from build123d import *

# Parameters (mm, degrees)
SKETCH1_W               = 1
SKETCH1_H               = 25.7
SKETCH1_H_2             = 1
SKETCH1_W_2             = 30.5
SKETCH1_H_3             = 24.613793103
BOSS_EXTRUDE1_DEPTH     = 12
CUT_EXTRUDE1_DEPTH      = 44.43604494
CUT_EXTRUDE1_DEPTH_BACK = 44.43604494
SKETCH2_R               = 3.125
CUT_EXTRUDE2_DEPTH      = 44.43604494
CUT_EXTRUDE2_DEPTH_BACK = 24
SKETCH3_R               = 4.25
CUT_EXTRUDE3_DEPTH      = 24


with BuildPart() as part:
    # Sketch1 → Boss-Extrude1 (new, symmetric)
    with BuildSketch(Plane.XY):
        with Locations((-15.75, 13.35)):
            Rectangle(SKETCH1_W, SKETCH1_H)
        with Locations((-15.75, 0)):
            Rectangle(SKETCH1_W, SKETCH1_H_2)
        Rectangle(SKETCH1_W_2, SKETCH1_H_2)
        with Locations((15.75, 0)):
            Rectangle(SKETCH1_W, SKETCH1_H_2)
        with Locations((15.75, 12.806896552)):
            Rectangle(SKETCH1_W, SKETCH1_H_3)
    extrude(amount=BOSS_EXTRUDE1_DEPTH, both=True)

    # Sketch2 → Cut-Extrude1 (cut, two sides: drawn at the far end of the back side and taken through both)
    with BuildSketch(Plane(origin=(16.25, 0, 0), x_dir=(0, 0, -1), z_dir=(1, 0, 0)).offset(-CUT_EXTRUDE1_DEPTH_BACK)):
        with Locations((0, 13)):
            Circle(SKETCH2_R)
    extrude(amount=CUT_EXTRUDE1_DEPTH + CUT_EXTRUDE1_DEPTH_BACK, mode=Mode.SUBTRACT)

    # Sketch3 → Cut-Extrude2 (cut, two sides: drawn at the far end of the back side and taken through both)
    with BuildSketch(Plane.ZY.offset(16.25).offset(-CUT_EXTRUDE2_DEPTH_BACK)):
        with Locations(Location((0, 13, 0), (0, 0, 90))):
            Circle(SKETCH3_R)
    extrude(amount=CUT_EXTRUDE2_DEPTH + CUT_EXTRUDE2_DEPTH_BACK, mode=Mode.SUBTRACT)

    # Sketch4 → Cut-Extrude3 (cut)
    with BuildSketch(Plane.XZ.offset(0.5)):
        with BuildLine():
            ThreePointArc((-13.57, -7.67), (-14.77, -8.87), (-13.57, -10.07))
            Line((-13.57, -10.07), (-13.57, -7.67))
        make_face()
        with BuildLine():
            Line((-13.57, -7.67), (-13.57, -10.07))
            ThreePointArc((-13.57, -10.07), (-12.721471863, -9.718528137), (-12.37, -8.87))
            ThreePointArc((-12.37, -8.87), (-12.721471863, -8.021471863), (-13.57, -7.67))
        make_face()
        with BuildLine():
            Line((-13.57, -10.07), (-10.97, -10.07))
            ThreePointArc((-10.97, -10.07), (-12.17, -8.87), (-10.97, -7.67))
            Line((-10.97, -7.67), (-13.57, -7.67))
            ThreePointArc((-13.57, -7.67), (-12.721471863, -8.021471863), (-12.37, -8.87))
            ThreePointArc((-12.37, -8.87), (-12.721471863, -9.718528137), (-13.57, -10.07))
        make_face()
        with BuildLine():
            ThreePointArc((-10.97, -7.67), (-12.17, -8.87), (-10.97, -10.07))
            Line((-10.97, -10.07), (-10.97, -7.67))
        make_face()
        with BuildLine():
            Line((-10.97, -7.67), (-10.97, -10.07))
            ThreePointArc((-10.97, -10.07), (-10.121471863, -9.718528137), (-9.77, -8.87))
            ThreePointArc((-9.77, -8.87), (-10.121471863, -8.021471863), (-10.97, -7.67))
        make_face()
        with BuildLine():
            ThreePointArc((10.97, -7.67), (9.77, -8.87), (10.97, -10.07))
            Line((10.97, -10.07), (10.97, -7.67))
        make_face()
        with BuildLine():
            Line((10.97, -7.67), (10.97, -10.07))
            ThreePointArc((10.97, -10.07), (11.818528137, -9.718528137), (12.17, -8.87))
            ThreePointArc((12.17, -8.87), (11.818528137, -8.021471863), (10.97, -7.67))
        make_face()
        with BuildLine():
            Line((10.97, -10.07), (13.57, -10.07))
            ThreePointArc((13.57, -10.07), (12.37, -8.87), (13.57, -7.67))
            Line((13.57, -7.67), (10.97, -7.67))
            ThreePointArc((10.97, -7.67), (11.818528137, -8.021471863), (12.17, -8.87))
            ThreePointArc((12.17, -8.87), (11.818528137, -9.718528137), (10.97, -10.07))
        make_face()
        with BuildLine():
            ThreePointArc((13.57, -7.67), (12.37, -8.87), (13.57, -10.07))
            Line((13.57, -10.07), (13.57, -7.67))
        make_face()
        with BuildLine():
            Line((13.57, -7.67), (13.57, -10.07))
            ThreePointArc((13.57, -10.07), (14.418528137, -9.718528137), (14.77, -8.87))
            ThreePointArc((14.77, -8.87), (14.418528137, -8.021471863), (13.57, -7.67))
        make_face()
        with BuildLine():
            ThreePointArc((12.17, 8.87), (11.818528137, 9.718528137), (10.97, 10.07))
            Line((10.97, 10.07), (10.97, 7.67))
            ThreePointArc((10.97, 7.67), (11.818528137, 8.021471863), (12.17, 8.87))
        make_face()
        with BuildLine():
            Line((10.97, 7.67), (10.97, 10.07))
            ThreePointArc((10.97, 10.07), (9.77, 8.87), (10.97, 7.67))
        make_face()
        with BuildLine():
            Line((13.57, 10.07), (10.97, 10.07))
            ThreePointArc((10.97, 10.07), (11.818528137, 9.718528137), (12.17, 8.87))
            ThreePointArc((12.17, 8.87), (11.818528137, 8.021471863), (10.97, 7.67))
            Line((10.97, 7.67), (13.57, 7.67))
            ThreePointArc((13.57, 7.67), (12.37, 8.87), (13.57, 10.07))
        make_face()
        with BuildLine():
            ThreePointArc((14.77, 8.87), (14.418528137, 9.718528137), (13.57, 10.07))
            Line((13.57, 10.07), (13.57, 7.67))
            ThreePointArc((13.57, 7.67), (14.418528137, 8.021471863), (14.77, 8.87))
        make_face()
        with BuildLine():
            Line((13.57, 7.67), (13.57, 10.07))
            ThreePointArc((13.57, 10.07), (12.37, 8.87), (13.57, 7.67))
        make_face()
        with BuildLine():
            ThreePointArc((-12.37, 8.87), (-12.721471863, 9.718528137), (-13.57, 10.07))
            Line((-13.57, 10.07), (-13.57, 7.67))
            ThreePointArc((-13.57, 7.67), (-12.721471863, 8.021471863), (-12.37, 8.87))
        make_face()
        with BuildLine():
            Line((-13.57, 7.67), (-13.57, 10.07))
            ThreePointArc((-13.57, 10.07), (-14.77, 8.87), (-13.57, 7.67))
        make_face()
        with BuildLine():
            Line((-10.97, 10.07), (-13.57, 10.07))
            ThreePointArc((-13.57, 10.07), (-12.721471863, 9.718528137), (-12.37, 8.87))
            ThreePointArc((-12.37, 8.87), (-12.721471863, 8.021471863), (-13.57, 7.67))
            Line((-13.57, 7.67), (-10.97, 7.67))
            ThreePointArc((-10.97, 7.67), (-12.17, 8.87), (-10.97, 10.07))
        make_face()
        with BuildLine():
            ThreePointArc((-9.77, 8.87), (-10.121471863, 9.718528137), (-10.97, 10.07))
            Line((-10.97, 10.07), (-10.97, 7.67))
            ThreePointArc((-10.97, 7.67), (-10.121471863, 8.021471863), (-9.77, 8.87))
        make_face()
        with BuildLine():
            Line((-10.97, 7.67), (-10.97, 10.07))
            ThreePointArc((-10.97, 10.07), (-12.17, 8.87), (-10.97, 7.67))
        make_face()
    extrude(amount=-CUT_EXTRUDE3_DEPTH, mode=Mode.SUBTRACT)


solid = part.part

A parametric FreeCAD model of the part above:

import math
import FreeCAD as App
import Part
import Sketcher

V = App.Vector


def add_polygon(sketch, points):
    """Adds a closed chain of lines whose ends are joined by coincident constraints."""
    first, n = sketch.GeometryCount, len(points)
    for a, b in zip(points, points[1:] + points[:1]):
        sketch.addGeometry(Part.LineSegment(App.Vector(*a, 0), App.Vector(*b, 0)), False)
    for i in range(n):
        sketch.addConstraint(Sketcher.Constraint("Coincident", first + i, 2, first + (i + 1) % n, 1))

doc = App.newDocument("Part")
body = doc.addObject("PartDesign::Body", "Body")

# Sketch on XY plane
sketch1 = doc.addObject("Sketcher::SketchObject", "Sketch")
body.addObject(sketch1)
sketch1.AttachmentSupport = (doc.XY_Plane, [""])
sketch1.MapMode = "FlatFace"
add_polygon(sketch1, [(-16.2, 26.2), (-16.2, -0.5), (16.2, -0.5), (16.2, 25.1), (15.2, 25.1), (15.2, 0.5), (-15.2, 0.5), (-15.2, 26.2)])  # lines 0-7
sketch1.addConstraint([
    Sketcher.Constraint("Vertical", 0),
    Sketcher.Constraint("Horizontal", 1),
    Sketcher.Constraint("Vertical", 2),
    Sketcher.Constraint("Horizontal", 3),
    Sketcher.Constraint("Vertical", 4),
    Sketcher.Constraint("Horizontal", 5),
    Sketcher.Constraint("Vertical", 6),
    Sketcher.Constraint("Horizontal", 7),
    Sketcher.Constraint("Equal", 3, 7),
    Sketcher.Constraint("DistanceX", 3, 2, 3, 1, 1.0),
    Sketcher.Constraint("DistanceX", 1, 1, 1, 2, 32.5),
    Sketcher.Constraint("DistanceY", 0, 2, 0, 1, 26.7),
    Sketcher.Constraint("DistanceY", 6, 1, 6, 2, 25.7),
    Sketcher.Constraint("DistanceY", 0, 2, -1, 1, 0.5),
    Sketcher.Constraint("DistanceX", 0, 2, -1, 1, 16.25),
    Sketcher.Constraint("DistanceY", 2, 1, 2, 2, 25.613793),
])
pad1 = doc.addObject("PartDesign::Pad", "Pad")
body.addObject(pad1)
pad1.Profile = sketch1
pad1.Length = 24
pad1.Midplane = True

# Sketch on YZ plane
sketch2 = doc.addObject("Sketcher::SketchObject", "Sketch001")
body.addObject(sketch2)
sketch2.AttachmentSupport = (doc.YZ_Plane, [""])
sketch2.MapMode = "FlatFace"
sketch2.AttachmentOffset = App.Placement(V(0, 0, 16.25), App.Rotation())
sketch2.addGeometry(Part.Circle(V(13, 0, 0), V(0, 0, 1), 3.1), False)
sketch2.addConstraint([
    Sketcher.Constraint("PointOnObject", 0, 3, -1),
    Sketcher.Constraint("Diameter", 0, 6.25),
    Sketcher.Constraint("DistanceX", -1, 1, 0, 3, 13.0),
])
pocket1 = doc.addObject("PartDesign::Pocket", "Pocket")
body.addObject(pocket1)
pocket1.Profile = sketch2
pocket1.Type = "ThroughAll"
pocket1.Midplane = True

# Sketch on YZ plane
sketch3 = doc.addObject("Sketcher::SketchObject", "Sketch002")
body.addObject(sketch3)
sketch3.AttachmentSupport = (doc.YZ_Plane, [""])
sketch3.MapMode = "FlatFace"
sketch3.AttachmentOffset = App.Placement(V(0, 0, -16.25), App.Rotation())
sketch3.addGeometry(Part.Circle(V(13, 0, 0), V(0, 0, 1), 4.2), False)
sketch3.addConstraint([
    Sketcher.Constraint("PointOnObject", 0, 3, -1),
    Sketcher.Constraint("Diameter", 0, 8.5),
    Sketcher.Constraint("DistanceX", -1, 1, 0, 3, 13.0),
])
pocket2 = doc.addObject("PartDesign::Pocket", "Pocket001")
body.addObject(pocket2)
pocket2.Profile = sketch3
pocket2.Type = "TwoLengths"
pocket2.Length = 44.436045
pocket2.Length2 = 24

# Sketch on XZ plane
sketch4 = doc.addObject("Sketcher::SketchObject", "Sketch003")
body.addObject(sketch4)
sketch4.AttachmentSupport = (doc.XZ_Plane, [""])
sketch4.MapMode = "FlatFace"
sketch4.AttachmentOffset = App.Placement(V(0, 0, 0.5), App.Rotation())
sketch4.addGeometry([
    Part.ArcOfCircle(Part.Circle(V(-13.6, -8.9, 0), V(0, 0, 1), 1.2), math.radians(90), math.radians(270)),  # 0
    Part.LineSegment(V(-13.6, -10.1, 0), V(-11, -10.1, 0)),  # 1
    Part.ArcOfCircle(Part.Circle(V(-11, -8.9, 0), V(0, 0, 1), 1.2), math.radians(-90), math.radians(0)),  # 2
    Part.ArcOfCircle(Part.Circle(V(-11, -8.9, 0), V(0, 0, 1), 1.2), math.radians(0), math.radians(90)),  # 3
    Part.LineSegment(V(-11, -7.7, 0), V(-13.6, -7.7, 0)),  # 4
    Part.LineSegment(V(11, -10.1, 0), V(13.6, -10.1, 0)),  # 5
    Part.ArcOfCircle(Part.Circle(V(13.6, -8.9, 0), V(0, 0, 1), 1.2), math.radians(-90), math.radians(0)),  # 6
    Part.ArcOfCircle(Part.Circle(V(13.6, -8.9, 0), V(0, 0, 1), 1.2), math.radians(0), math.radians(90)),  # 7
    Part.LineSegment(V(13.6, -7.7, 0), V(11, -7.7, 0)),  # 8
    Part.ArcOfCircle(Part.Circle(V(11, -8.9, 0), V(0, 0, 1), 1.2), math.radians(90), math.radians(270)),  # 9
    Part.LineSegment(V(11, 7.7, 0), V(13.6, 7.7, 0)),  # 10
    Part.ArcOfCircle(Part.Circle(V(13.6, 8.9, 0), V(0, 0, 1), 1.2), math.radians(-90), math.radians(0)),  # 11
    Part.ArcOfCircle(Part.Circle(V(13.6, 8.9, 0), V(0, 0, 1), 1.2), math.radians(0), math.radians(90)),  # 12
    Part.LineSegment(V(13.6, 10.1, 0), V(11, 10.1, 0)),  # 13
    Part.ArcOfCircle(Part.Circle(V(11, 8.9, 0), V(0, 0, 1), 1.2), math.radians(90), math.radians(270)),  # 14
    Part.LineSegment(V(-13.6, 7.7, 0), V(-11, 7.7, 0)),  # 15
    Part.ArcOfCircle(Part.Circle(V(-11, 8.9, 0), V(0, 0, 1), 1.2), math.radians(-90), math.radians(0)),  # 16
    Part.ArcOfCircle(Part.Circle(V(-11, 8.9, 0), V(0, 0, 1), 1.2), math.radians(0), math.radians(90)),  # 17
    Part.LineSegment(V(-11, 10.1, 0), V(-13.6, 10.1, 0)),  # 18
    Part.ArcOfCircle(Part.Circle(V(-13.6, 8.9, 0), V(0, 0, 1), 1.2), math.radians(90), math.radians(270)),  # 19
], False)
sketch4.addConstraint([
    Sketcher.Constraint("Tangent", 0, 2, 1, 1),
    Sketcher.Constraint("Tangent", 1, 2, 2, 1),
    Sketcher.Constraint("Tangent", 2, 2, 3, 1),
    Sketcher.Constraint("Tangent", 3, 2, 4, 1),
    Sketcher.Constraint("Tangent", 4, 2, 0, 1),
    Sketcher.Constraint("Tangent", 5, 2, 6, 1),
    Sketcher.Constraint("Tangent", 6, 2, 7, 1),
    Sketcher.Constraint("Tangent", 7, 2, 8, 1),
    Sketcher.Constraint("Tangent", 8, 2, 9, 1),
    Sketcher.Constraint("Tangent", 9, 2, 5, 1),
    Sketcher.Constraint("Tangent", 10, 2, 11, 1),
    Sketcher.Constraint("Tangent", 11, 2, 12, 1),
    Sketcher.Constraint("Tangent", 12, 2, 13, 1),
    Sketcher.Constraint("Tangent", 13, 2, 14, 1),
    Sketcher.Constraint("Tangent", 14, 2, 10, 1),
    Sketcher.Constraint("Tangent", 15, 2, 16, 1),
    Sketcher.Constraint("Tangent", 16, 2, 17, 1),
    Sketcher.Constraint("Tangent", 17, 2, 18, 1),
    Sketcher.Constraint("Tangent", 18, 2, 19, 1),
    Sketcher.Constraint("Tangent", 19, 2, 15, 1),
    Sketcher.Constraint("Horizontal", 1),
    Sketcher.Constraint("Horizontal", 4),
    Sketcher.Constraint("Horizontal", 5),
    Sketcher.Constraint("Horizontal", 8),
    Sketcher.Constraint("Horizontal", 10),
    Sketcher.Constraint("Horizontal", 13),
    Sketcher.Constraint("Horizontal", 15),
    Sketcher.Constraint("Horizontal", 18),
    Sketcher.Constraint("Equal", 0, 2),
    Sketcher.Constraint("Equal", 3, 6),
    Sketcher.Constraint("Equal", 6, 7),
    Sketcher.Constraint("Equal", 9, 11),
    Sketcher.Constraint("Equal", 11, 12),
    Sketcher.Constraint("Equal", 14, 16),
    Sketcher.Constraint("Equal", 16, 17),
    Sketcher.Constraint("Symmetric", 0, 3, 11, 3, -1, 1),
    Sketcher.Constraint("Symmetric", 9, 3, 16, 3, -1, 1),
    Sketcher.Constraint("Symmetric", 0, 3, 6, 3, -2),
    Sketcher.Constraint("Symmetric", 2, 2, 16, 2, -1),
    Sketcher.Constraint("Horizontal", 9, 3, 2, 2),
    Sketcher.Constraint("Horizontal", 2, 2, 6, 2),
    Sketcher.Constraint("Horizontal", 19, 3, 11, 2),
    Sketcher.Constraint("Vertical", 9, 3, 14, 3),
    Sketcher.Constraint("Vertical", 0, 3, 19, 3),
    Sketcher.Constraint("Radius", 0, 1.2),
    Sketcher.Constraint("DistanceX", 1, 1, 1, 2, 2.6),
    Sketcher.Constraint("DistanceX", 0, 3, -1, 1, 13.57),
    Sketcher.Constraint("DistanceY", 0, 3, -1, 1, 8.87),
])
pocket3 = doc.addObject("PartDesign::Pocket", "Pocket002")
body.addObject(pocket3)
pocket3.Profile = sketch4
pocket3.Length = 24

doc.recompute()
